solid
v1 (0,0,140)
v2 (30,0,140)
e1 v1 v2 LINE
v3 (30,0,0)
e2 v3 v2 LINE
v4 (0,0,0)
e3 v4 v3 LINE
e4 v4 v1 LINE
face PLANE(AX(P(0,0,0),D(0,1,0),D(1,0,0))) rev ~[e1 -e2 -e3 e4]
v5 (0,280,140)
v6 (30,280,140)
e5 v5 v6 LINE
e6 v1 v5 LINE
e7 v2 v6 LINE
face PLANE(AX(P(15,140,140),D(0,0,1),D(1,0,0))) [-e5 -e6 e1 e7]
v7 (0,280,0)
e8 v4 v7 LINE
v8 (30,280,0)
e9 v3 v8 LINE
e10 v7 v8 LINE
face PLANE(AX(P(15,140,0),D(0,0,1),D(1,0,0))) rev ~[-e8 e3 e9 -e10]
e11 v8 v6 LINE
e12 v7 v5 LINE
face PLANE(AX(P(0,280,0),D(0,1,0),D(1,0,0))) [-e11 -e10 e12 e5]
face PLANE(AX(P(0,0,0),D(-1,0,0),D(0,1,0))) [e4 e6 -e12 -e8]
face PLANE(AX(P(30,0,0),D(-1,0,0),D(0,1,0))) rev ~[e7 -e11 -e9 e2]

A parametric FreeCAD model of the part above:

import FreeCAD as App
import Part
import Sketcher
from FreeCAD import Vector
Q = App.Units.Quantity

doc = App.newDocument("Part")
params = doc.addObject("Spreadsheet::Sheet", "Params")
for row, (alias, value) in enumerate([
    ("sketch1_width", "30 mm"),
    ("sketch1_height", "280 mm"),
    ("pad1_length", "140 mm"),
], start=1):
    params.set(f"A{row}", alias)
    params.set(f"B{row}", "=" + value)
    params.setAlias(f"B{row}", alias)

body = doc.addObject("PartDesign::Body", "Body")

sketch1 = body.newObject("Sketcher::SketchObject", "Sketch")
sketch1.AttachmentSupport = (doc.getObject("XY_Plane"), [""])
sketch1.MapMode = "FlatFace"
sketch1.addGeometry([
    Part.LineSegment(Vector(0, 280, 0), Vector(0, 0, 0)),
    Part.LineSegment(Vector(0, 0, 0), Vector(30, 0, 0)),
    Part.LineSegment(Vector(30, 0, 0), Vector(30, 280, 0)),
    Part.LineSegment(Vector(30, 280, 0), Vector(0, 280, 0)),
], False)
sketch1.addConstraint([
    Sketcher.Constraint("Coincident", 0, 2, 1, 1),
    Sketcher.Constraint("Coincident", 1, 2, 2, 1),
    Sketcher.Constraint("Coincident", 2, 2, 3, 1),
    Sketcher.Constraint("Coincident", 3, 2, 0, 1),
    Sketcher.Constraint("Vertical", 0),
    Sketcher.Constraint("Horizontal", 1),
    Sketcher.Constraint("Vertical", 2),
    Sketcher.Constraint("Horizontal", 3),
    Sketcher.Constraint("Coincident", 0, 2, -1, 1),
    Sketcher.Constraint("DistanceX", 1, 1, 1, 2, Q("30 mm")),
    Sketcher.Constraint("DistanceY", 0, 2, 0, 1, Q("280 mm")),
])
sketch1.setExpression("Constraints[9]", "Params.sketch1_width")
sketch1.setExpression("Constraints[10]", "Params.sketch1_height")
pad1 = body.newObject("PartDesign::Pad", "Pad")
pad1.Profile = sketch1
pad1.setExpression("Length", "Params.pad1_length")

doc.recompute()
